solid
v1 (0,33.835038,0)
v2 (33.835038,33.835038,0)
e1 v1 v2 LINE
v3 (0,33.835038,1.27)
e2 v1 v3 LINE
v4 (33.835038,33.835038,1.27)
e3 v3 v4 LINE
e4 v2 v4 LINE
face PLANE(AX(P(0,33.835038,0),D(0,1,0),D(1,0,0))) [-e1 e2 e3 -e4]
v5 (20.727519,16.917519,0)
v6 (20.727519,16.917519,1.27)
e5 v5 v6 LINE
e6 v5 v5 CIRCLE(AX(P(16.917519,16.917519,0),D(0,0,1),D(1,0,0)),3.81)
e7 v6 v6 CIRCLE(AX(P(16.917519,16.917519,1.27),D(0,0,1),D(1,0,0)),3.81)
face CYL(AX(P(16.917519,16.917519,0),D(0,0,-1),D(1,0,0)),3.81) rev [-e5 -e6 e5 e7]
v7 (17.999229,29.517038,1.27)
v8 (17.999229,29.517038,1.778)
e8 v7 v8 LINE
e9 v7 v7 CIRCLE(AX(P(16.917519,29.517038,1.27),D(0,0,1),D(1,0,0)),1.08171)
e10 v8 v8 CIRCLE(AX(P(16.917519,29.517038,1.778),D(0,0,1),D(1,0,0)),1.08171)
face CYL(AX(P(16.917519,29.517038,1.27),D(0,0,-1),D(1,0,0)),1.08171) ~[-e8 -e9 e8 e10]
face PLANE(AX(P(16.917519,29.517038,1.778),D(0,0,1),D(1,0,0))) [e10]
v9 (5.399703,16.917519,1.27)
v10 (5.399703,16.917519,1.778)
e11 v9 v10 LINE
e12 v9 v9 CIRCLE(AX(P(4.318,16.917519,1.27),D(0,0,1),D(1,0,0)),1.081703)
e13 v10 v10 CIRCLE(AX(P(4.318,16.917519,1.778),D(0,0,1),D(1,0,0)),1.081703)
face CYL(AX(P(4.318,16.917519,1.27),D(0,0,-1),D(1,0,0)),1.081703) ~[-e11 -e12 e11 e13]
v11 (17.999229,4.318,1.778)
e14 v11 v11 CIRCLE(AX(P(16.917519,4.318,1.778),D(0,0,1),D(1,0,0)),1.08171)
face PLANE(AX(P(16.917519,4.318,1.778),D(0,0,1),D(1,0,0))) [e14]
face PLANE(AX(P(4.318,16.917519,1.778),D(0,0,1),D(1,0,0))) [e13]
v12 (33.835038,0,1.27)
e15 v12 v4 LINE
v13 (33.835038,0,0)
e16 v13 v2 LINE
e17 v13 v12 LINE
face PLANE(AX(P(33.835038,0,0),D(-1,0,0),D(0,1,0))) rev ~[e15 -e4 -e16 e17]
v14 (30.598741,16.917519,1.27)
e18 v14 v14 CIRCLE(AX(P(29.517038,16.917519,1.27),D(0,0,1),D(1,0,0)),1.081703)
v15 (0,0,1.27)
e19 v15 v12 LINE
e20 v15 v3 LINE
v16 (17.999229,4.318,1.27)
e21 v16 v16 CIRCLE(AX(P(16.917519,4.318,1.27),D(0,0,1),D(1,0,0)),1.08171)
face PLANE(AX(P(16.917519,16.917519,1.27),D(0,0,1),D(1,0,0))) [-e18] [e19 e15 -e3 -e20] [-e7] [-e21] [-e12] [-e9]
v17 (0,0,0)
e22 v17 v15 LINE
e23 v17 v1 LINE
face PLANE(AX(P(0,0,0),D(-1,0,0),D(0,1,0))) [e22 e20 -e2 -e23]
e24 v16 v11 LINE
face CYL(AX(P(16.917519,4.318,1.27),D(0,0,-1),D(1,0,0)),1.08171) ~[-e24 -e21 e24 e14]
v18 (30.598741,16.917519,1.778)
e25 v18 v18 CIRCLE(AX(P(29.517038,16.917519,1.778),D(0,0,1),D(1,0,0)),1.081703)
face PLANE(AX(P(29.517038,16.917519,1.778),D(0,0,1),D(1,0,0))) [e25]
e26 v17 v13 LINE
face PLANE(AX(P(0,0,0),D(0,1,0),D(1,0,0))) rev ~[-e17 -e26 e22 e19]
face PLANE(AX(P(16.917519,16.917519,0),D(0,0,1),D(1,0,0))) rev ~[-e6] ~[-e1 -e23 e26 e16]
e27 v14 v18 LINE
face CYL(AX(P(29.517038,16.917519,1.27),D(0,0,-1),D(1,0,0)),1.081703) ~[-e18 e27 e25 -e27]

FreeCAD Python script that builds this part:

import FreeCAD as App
import Part
import Sketcher

V = App.Vector
Q = App.Units.Quantity


def add_polygon(sketch, points):
    """Adds a closed chain of lines whose ends are joined by coincident constraints."""
    first, n = sketch.GeometryCount, len(points)
    for a, b in zip(points, points[1:] + points[:1]):
        sketch.addGeometry(Part.LineSegment(App.Vector(*a, 0), App.Vector(*b, 0)), False)
    for i in range(n):
        sketch.addConstraint(Sketcher.Constraint("Coincident", first + i, 2, first + (i + 1) % n, 1))

doc = App.newDocument("Part")
params = doc.addObject("Spreadsheet::Sheet", "Params")
for row, (alias, value) in enumerate([
    ("sketch1_diameter", "0.3 in"),
    ("pad1_length", "0.05 in"),
    ("pad2_length", "0.02 in"),
], start=1):
    params.set(f"A{row}", alias)
    params.set(f"B{row}", "=" + value)
    params.setAlias(f"B{row}", alias)

body = doc.addObject("PartDesign::Body", "Body")

# Sketch on XY plane
sketch1 = body.newObject("Sketcher::SketchObject", "Sketch")
sketch1.AttachmentSupport = (doc.getObject("XY_Plane"), [""])
sketch1.MapMode = "FlatFace"
add_polygon(sketch1, [(0, 33.8), (0, 0), (33.8, 0), (33.8, 33.8)])  # lines 0-3
sketch1.addGeometry(Part.Circle(V(16.9, 16.9, 0), V(0, 0, 1), 3.8), False)  # 4
sketch1.addConstraint(Sketcher.Constraint("Vertical", 0))
sketch1.addConstraint(Sketcher.Constraint("Horizontal", 1))
sketch1.addConstraint(Sketcher.Constraint("Vertical", 2))
sketch1.addConstraint(Sketcher.Constraint("Horizontal", 3))
sketch1.addConstraint(Sketcher.Constraint("Coincident", 0, 2, -1, 1))
sketch1.addConstraint(Sketcher.Constraint("Equal", 3, 0))
sketch1.addConstraint(Sketcher.Constraint("Diameter", 4, Q("0.3 in")))
sketch1.addConstraint(Sketcher.Constraint("DistanceX", 1, 1, 1, 2, 33.835038))
sketch1.addConstraint(Sketcher.Constraint("DistanceX", -1, 1, 4, 3, 16.917519))
sketch1.addConstraint(Sketcher.Constraint("DistanceY", -1, 1, 4, 3, 16.917519))
sketch1.setExpression("Constraints[10]", "Params.sketch1_diameter")
pad1 = body.newObject("PartDesign::Pad", "Pad")
pad1.Profile = sketch1
pad1.setExpression("Length", "Params.pad1_length")

# Sketch on XY plane
sketch2 = body.newObject("Sketcher::SketchObject", "Sketch001")
sketch2.AttachmentSupport = (doc.getObject("XY_Plane"), [""])
sketch2.MapMode = "FlatFace"
sketch2.AttachmentOffset = App.Placement(V(0, 0, 0.05 * 25.4), App.Rotation())
sketch2.addGeometry(Part.Circle(V(29.5, 16.9, 0), V(0, 0, 1), 1.1), False)
sketch2.addGeometry(Part.Circle(V(4.3, 16.9, 0), V(0, 0, 1), 1.1), False)
sketch2.addGeometry(Part.Circle(V(16.9, 29.5, 0), V(0, 0, 1), 1.1), False)
sketch2.addGeometry(Part.Circle(V(16.9, 4.3, 0), V(0, 0, 1), 1.1), False)
sketch2.addConstraint(Sketcher.Constraint("Equal", 0, 1))
sketch2.addConstraint(Sketcher.Constraint("Equal", 2, 3))
sketch2.addConstraint(Sketcher.Constraint("Horizontal", 0, 3, 1, 3))
sketch2.addConstraint(Sketcher.Constraint("Vertical", 2, 3, 3, 3))
sketch2.addConstraint(Sketcher.Constraint("DistanceX", -1, 1, 1, 3, Q("0.17 in")))
sketch2.addConstraint(Sketcher.Constraint("DistanceY", -1, 1, 3, 3, Q("0.17 in")))
sketch2.addConstraint(Sketcher.Constraint("Diameter", 2, 2.16342))
sketch2.addConstraint(Sketcher.Constraint("Diameter", 0, 2.163406))
sketch2.addConstraint(Sketcher.Constraint("DistanceY", -1, 1, 0, 3, 16.917519))
sketch2.addConstraint(Sketcher.Constraint("DistanceX", -1, 1, 2, 3, 16.917519))
sketch2.addConstraint(Sketcher.Constraint("DistanceX", 1, 3, 0, 3, 25.199038))
sketch2.addConstraint(Sketcher.Constraint("DistanceY", 0, 3, 2, 3, 12.599519))
pad2 = body.newObject("PartDesign::Pad", "Pad001")
pad2.Profile = sketch2
pad2.setExpression("Length", "Params.pad2_length")

doc.recompute()
